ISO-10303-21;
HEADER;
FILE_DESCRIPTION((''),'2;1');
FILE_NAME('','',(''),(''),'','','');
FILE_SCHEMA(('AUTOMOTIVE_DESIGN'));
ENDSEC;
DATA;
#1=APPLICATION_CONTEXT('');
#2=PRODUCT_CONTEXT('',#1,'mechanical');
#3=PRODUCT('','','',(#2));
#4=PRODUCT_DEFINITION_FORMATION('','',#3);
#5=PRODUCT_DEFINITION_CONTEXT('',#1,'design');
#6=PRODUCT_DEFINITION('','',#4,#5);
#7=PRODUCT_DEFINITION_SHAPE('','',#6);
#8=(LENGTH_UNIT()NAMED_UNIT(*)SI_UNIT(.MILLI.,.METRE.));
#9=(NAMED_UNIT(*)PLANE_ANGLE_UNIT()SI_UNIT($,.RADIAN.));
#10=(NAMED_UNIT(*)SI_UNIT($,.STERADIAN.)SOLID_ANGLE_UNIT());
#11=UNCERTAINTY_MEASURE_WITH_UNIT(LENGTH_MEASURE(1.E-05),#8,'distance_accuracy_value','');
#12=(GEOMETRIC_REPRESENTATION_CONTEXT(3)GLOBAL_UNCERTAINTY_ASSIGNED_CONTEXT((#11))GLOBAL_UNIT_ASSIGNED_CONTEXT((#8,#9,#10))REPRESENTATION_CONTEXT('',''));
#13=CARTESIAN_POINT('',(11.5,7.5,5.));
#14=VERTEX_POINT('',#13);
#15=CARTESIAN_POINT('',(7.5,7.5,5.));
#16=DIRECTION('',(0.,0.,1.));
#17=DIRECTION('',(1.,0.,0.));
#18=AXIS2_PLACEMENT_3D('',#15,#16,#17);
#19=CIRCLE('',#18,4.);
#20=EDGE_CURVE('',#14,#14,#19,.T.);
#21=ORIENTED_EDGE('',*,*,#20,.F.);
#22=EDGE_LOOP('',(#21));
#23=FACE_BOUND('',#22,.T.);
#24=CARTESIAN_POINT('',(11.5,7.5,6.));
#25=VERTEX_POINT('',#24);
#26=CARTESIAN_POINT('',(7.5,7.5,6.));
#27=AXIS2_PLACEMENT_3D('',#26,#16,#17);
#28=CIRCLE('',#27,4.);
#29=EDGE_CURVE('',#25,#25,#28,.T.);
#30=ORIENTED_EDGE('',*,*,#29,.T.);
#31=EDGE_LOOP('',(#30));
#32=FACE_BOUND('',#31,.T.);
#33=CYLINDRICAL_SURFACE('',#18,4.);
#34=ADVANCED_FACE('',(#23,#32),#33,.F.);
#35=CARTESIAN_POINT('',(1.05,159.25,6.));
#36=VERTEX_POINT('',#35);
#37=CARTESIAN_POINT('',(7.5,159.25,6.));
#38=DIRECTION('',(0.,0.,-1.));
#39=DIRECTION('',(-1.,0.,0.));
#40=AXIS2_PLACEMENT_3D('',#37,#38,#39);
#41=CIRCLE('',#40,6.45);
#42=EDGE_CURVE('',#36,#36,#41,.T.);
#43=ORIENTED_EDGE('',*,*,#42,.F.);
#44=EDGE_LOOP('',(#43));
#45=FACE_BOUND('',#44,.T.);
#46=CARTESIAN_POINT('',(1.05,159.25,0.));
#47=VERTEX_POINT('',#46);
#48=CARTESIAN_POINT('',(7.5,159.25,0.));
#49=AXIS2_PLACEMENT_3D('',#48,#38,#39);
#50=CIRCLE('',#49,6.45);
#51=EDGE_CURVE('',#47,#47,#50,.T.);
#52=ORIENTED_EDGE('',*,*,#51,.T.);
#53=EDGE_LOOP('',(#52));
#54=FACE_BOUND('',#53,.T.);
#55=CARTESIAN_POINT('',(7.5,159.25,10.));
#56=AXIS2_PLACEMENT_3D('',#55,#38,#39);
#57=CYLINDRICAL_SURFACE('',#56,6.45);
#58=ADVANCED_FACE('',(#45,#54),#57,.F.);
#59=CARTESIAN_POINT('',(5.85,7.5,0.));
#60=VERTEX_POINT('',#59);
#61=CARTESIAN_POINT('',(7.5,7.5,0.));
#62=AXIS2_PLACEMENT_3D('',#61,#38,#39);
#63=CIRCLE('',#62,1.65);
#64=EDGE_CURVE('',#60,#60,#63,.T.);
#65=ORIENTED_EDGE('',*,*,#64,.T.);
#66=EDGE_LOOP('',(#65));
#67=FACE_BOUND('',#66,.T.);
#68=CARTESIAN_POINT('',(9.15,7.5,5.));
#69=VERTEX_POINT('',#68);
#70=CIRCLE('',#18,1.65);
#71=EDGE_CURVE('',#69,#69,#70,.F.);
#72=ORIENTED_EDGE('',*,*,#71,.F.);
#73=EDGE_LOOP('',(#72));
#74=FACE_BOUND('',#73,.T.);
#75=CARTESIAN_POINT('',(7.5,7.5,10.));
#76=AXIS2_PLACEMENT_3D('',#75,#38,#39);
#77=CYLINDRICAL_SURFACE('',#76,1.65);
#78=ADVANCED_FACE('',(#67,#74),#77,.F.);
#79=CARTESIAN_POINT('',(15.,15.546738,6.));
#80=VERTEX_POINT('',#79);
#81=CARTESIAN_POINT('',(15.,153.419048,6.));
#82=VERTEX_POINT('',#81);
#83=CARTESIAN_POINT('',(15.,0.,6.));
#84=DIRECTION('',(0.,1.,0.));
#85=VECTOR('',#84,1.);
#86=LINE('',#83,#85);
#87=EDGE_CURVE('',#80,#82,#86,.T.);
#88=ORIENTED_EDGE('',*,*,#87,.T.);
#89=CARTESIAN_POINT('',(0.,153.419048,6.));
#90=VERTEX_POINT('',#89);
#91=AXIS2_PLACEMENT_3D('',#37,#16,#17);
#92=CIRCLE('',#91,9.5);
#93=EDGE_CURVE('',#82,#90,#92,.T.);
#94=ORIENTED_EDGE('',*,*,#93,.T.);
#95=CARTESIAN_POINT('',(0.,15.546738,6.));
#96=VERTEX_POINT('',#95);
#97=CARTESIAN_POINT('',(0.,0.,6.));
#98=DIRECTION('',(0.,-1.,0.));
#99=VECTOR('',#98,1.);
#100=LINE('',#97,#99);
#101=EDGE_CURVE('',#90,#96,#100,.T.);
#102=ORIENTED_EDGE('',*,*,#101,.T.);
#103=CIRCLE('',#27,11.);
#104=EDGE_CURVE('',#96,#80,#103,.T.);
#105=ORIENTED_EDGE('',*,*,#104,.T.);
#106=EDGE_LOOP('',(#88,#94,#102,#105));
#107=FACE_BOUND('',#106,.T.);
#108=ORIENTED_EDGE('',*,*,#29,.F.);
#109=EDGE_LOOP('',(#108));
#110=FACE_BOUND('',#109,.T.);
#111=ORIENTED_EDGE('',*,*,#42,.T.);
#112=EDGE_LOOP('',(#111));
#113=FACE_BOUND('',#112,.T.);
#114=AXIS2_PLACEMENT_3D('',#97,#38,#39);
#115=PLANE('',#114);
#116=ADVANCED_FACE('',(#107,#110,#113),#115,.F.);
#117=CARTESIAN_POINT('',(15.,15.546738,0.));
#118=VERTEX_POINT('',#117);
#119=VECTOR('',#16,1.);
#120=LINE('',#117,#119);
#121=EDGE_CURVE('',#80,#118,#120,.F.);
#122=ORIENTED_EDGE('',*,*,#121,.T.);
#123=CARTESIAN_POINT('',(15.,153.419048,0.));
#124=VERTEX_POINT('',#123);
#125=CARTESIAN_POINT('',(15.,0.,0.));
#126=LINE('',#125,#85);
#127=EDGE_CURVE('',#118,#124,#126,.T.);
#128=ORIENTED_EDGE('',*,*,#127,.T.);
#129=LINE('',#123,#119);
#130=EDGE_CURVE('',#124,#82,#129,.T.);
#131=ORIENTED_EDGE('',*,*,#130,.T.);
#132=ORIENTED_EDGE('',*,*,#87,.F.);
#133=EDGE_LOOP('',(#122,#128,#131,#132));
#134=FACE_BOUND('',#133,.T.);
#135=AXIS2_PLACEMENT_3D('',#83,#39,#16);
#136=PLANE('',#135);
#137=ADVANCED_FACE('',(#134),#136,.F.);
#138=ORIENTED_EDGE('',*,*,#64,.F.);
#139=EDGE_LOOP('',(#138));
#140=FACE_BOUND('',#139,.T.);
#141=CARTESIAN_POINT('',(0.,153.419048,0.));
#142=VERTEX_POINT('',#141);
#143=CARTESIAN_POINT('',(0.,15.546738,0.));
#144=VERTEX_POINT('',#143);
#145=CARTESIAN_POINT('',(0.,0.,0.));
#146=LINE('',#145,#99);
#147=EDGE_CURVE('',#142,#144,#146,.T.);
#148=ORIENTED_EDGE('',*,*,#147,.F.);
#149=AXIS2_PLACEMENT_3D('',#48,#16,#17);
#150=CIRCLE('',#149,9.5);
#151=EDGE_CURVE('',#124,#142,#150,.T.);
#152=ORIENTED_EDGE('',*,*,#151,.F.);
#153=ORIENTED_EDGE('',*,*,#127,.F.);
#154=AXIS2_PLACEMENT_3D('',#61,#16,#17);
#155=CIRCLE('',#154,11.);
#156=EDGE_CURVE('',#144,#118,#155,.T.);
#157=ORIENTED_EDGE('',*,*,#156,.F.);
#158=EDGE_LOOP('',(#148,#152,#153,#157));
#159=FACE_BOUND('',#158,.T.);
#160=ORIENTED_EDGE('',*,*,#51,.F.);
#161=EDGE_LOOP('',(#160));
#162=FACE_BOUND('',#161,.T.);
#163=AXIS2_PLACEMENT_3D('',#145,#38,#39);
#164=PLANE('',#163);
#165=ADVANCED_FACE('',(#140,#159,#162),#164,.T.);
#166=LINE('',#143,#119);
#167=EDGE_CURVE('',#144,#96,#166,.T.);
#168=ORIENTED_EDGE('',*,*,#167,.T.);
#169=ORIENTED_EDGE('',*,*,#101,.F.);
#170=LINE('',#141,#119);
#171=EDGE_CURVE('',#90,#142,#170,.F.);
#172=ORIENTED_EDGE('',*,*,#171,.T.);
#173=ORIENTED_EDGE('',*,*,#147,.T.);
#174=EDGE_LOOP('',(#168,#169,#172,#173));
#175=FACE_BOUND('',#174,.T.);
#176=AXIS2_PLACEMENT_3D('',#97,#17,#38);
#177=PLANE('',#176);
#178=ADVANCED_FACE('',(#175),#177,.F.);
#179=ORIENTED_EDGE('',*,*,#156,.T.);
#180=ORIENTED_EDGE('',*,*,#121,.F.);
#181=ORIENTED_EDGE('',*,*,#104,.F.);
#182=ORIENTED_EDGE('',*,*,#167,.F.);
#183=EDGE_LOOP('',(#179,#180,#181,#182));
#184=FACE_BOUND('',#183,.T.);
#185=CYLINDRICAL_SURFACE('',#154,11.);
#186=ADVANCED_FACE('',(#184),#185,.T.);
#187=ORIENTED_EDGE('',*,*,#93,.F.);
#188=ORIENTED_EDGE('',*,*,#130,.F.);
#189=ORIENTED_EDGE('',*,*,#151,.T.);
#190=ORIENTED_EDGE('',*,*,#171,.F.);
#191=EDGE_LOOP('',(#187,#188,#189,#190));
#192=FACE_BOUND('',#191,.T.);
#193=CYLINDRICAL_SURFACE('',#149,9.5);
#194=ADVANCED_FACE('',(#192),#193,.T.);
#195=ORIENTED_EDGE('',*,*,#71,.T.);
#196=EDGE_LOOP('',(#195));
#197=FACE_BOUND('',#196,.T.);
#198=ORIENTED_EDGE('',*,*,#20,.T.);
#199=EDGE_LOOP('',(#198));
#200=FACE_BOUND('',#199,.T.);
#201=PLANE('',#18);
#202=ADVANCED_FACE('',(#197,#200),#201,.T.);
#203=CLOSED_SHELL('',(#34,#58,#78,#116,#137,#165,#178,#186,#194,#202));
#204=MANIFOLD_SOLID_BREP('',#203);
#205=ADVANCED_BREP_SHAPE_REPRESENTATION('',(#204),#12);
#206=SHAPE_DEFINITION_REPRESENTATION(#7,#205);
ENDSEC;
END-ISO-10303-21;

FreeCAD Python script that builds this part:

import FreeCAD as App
import Part
import Sketcher

V = App.Vector

doc = App.newDocument("Part")
body = doc.addObject("PartDesign::Body", "Body")

# Sketch on XY plane
sketch1 = body.newObject("Sketcher::SketchObject", "Sketch")
sketch1.AttachmentSupport = (doc.getObject("XY_Plane"), [""])
sketch1.MapMode = "FlatFace"
sketch1.addGeometry([
    Part.LineSegment(V(0, 165, 0), V(0, 0, 0)),
    Part.LineSegment(V(0, 0, 0), V(15, 0, 0)),
    Part.LineSegment(V(15, 0, 0), V(15, 165, 0)),
    Part.LineSegment(V(15, 165, 0), V(0, 165, 0)),
], False)
sketch1.addConstraint([
    Sketcher.Constraint("Coincident", 0, 2, 1, 1),
    Sketcher.Constraint("Coincident", 1, 2, 2, 1),
    Sketcher.Constraint("Coincident", 2, 2, 3, 1),
    Sketcher.Constraint("Coincident", 3, 2, 0, 1),
    Sketcher.Constraint("Vertical", 0),
    Sketcher.Constraint("Horizontal", 1),
    Sketcher.Constraint("Vertical", 2),
    Sketcher.Constraint("Horizontal", 3),
    Sketcher.Constraint("Coincident", 0, 2, -1, 1),
    Sketcher.Constraint("DistanceX", 1, 1, 1, 2, 15.0),
    Sketcher.Constraint("DistanceY", 0, 2, 0, 1, 165.0),
])
pad1 = body.newObject("PartDesign::Pad", "Pad")
pad1.Profile = sketch1
pad1.Length = 6

# Sketch on XY plane
sketch2 = body.newObject("Sketcher::SketchObject", "Sketch001")
sketch2.AttachmentSupport = (doc.getObject("XY_Plane"), [""])
sketch2.MapMode = "FlatFace"
sketch2.AttachmentOffset = App.Placement(V(0, 0, 6), App.Rotation())
sketch2.addGeometry([
    Part.Circle(V(7.5, 7.5, 0), V(0, 0, 1), 11),
    Part.Circle(V(7.5, 159.25, 0), V(0, 0, 1), 9.5),
], False)
sketch2.addConstraint([
    Sketcher.Constraint("Vertical", 0, 3, 1, 3),
    Sketcher.Constraint("Diameter", 0, 22.0),
    Sketcher.Constraint("Diameter", 1, 19.0),
    Sketcher.Constraint("DistanceX", -1, 1, 0, 3, 7.5),
    Sketcher.Constraint("DistanceY", -1, 1, 0, 3, 7.5),
    Sketcher.Constraint("DistanceY", -1, 1, 1, 3, 159.25),
])
pad2 = body.newObject("PartDesign::Pad", "Pad001")
pad2.Profile = sketch2
pad2.Length = 6
pad2.Reversed = True

# Sketch on XY plane
sketch3 = body.newObject("Sketcher::SketchObject", "Sketch002")
sketch3.AttachmentSupport = (doc.getObject("XY_Plane"), [""])
sketch3.MapMode = "FlatFace"
sketch3.addGeometry([
    Part.Circle(V(7.5, 7.5, 0), V(0, 0, 1), 1.65),
    Part.Circle(V(7.5, 159.25, 0), V(0, 0, 1), 6.45),
], False)
sketch3.addConstraint([
    Sketcher.Constraint("Vertical", 0, 3, 1, 3),
    Sketcher.Constraint("Diameter", 0, 3.3),
    Sketcher.Constraint("Diameter", 1, 12.9),
    Sketcher.Constraint("DistanceX", -1, 1, 0, 3, 7.5),
    Sketcher.Constraint("DistanceY", -1, 1, 0, 3, 7.5),
    Sketcher.Constraint("DistanceY", -1, 1, 1, 3, 159.25),
])
pocket1 = body.newObject("PartDesign::Pocket", "Pocket")
pocket1.Profile = sketch3
pocket1.Length = 10
pocket1.Reversed = True

# Sketch on XY plane
sketch4 = body.newObject("Sketcher::SketchObject", "Sketch003")
sketch4.AttachmentSupport = (doc.getObject("XY_Plane"), [""])
sketch4.MapMode = "FlatFace"
sketch4.AttachmentOffset = App.Placement(V(0, 0, 6), App.Rotation())
sketch4.addGeometry(Part.Circle(V(7.5, 7.5, 0), V(0, 0, 1), 4), False)
sketch4.addConstraint([
    Sketcher.Constraint("Diameter", 0, 8.0),
    Sketcher.Constraint("DistanceX", -1, 1, 0, 3, 7.5),
    Sketcher.Constraint("DistanceY", -1, 1, 0, 3, 7.5),
])
pocket2 = body.newObject("PartDesign::Pocket", "Pocket001")
pocket2.Profile = sketch4
pocket2.Length = 1

doc.recompute()
